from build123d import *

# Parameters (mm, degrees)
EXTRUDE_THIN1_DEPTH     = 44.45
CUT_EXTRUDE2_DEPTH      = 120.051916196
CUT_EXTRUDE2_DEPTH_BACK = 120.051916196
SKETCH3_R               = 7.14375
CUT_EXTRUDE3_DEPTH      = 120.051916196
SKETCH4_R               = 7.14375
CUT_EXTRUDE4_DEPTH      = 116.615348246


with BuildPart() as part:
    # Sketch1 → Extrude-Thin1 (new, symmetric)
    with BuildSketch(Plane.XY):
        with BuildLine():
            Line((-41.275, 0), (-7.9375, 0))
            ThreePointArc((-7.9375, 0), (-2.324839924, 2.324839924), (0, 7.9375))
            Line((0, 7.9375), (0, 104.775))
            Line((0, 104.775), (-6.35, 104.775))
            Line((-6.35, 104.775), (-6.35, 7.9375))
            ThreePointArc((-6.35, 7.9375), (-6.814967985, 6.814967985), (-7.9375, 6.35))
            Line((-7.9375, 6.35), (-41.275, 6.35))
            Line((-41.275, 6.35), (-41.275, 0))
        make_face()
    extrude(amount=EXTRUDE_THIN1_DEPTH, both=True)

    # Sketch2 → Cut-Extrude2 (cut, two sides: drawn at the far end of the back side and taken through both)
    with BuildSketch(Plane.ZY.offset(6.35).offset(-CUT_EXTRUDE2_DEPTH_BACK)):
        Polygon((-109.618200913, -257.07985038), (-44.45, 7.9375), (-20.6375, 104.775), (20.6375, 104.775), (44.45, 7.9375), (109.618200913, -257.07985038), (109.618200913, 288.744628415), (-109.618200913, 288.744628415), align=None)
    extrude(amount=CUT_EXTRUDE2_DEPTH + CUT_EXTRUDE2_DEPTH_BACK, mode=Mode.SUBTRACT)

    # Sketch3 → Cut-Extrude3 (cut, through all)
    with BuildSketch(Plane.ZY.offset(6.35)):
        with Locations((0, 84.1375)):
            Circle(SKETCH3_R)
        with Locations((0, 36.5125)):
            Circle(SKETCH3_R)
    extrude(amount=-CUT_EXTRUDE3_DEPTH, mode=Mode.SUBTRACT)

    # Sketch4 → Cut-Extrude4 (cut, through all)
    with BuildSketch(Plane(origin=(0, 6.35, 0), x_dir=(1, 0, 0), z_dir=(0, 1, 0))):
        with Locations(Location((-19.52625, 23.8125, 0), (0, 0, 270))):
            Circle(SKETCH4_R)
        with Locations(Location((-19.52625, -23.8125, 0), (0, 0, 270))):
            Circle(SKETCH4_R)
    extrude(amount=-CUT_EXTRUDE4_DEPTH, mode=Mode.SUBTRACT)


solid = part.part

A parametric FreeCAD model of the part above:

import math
import FreeCAD as App
import Part
import Sketcher
Q = App.Units.Quantity

doc = App.newDocument("Part")
body = doc.addObject("PartDesign::Body", "Body")

# Sketch on XY plane
sketch1 = body.newObject("Sketcher::SketchObject", "Sketch")
sketch1.AttachmentSupport = (doc.getObject("XY_Plane"), [""])
sketch1.MapMode = "FlatFace"
sketch1.addGeometry(Part.LineSegment(App.Vector(-41.3, 0, 0), App.Vector(-7.9, 0, 0)), False)
sketch1.addGeometry(Part.ArcOfCircle(Part.Circle(App.Vector(-7.9, 7.9, 0), App.Vector(0, 0, 1), 7.9), math.radians(-90), math.radians(0)), False)
sketch1.addGeometry(Part.LineSegment(App.Vector(0, 7.9, 0), App.Vector(0, 104.8, 0)), False)
sketch1.addGeometry(Part.LineSegment(App.Vector(0, 104.8, 0), App.Vector(-6.3, 104.8, 0)), False)
sketch1.addGeometry(Part.LineSegment(App.Vector(-6.3, 104.8, 0), App.Vector(-6.3, 7.9, 0)), False)
sketch1.addGeometry(Part.ArcOfCircle(Part.Circle(App.Vector(-7.9, 7.9, 0), App.Vector(0, 0, 1), 1.6), math.radians(-90), math.radians(0)), False)
sketch1.addGeometry(Part.LineSegment(App.Vector(-7.9, 6.3, 0), App.Vector(-41.3, 6.3, 0)), False)
sketch1.addGeometry(Part.LineSegment(App.Vector(-41.3, 6.3, 0), App.Vector(-41.3, 0, 0)), False)
sketch1.addConstraint(Sketcher.Constraint("Tangent", 0, 2, 1, 1))
sketch1.addConstraint(Sketcher.Constraint("Tangent", 1, 2, 2, 1))
sketch1.addConstraint(Sketcher.Constraint("Coincident", 2, 2, 3, 1))
sketch1.addConstraint(Sketcher.Constraint("Coincident", 3, 2, 4, 1))
sketch1.addConstraint(Sketcher.Constraint("Tangent", 4, 2, 5, 2))
sketch1.addConstraint(Sketcher.Constraint("Tangent", 5, 1, 6, 1))
sketch1.addConstraint(Sketcher.Constraint("Coincident", 6, 2, 7, 1))
sketch1.addConstraint(Sketcher.Constraint("Coincident", 7, 2, 0, 1))
sketch1.addConstraint(Sketcher.Constraint("Horizontal", 0))
sketch1.addConstraint(Sketcher.Constraint("Vertical", 2))
sketch1.addConstraint(Sketcher.Constraint("Horizontal", 3))
sketch1.addConstraint(Sketcher.Constraint("Vertical", 4))
sketch1.addConstraint(Sketcher.Constraint("Horizontal", 6))
sketch1.addConstraint(Sketcher.Constraint("Vertical", 7))
sketch1.addConstraint(Sketcher.Constraint("Coincident", 5, 3, 1, 3))
sketch1.addConstraint(Sketcher.Constraint("PointOnObject", 0, 2, -1))
sketch1.addConstraint(Sketcher.Constraint("PointOnObject", 1, 2, -2))
sketch1.addConstraint(Sketcher.Constraint("Radius", 1, Q("0.3125 in")))
sketch1.addConstraint(Sketcher.Constraint("Radius", 5, Q("0.0625 in")))
sketch1.addConstraint(Sketcher.Constraint("DistanceX", 0, 1, 0, 2, Q("1.3125 in")))
sketch1.addConstraint(Sketcher.Constraint("DistanceY", 2, 1, 2, 2, Q("3.8125 in")))
pad1 = body.newObject("PartDesign::Pad", "Pad")
pad1.Profile = sketch1
pad1.Length = Q("3.5 in")
pad1.Midplane = True

# Sketch on YZ plane
sketch2 = body.newObject("Sketcher::SketchObject", "Sketch001")
sketch2.AttachmentSupport = (doc.getObject("YZ_Plane"), [""])
sketch2.MapMode = "FlatFace"
sketch2.AttachmentOffset = App.Placement(App.Vector(0, 0, -0.25 * 25.4), App.Rotation())
sketch2.addGeometry(Part.LineSegment(App.Vector(-257, -110, 0), App.Vector(105, -21, 0)), False)
sketch2.addGeometry(Part.LineSegment(App.Vector(105, -21, 0), App.Vector(105, 21, 0)), False)
sketch2.addGeometry(Part.LineSegment(App.Vector(105, 21, 0), App.Vector(-257, 110, 0)), False)
sketch2.addGeometry(Part.LineSegment(App.Vector(-257, 110, 0), App.Vector(289, 110, 0)), False)
sketch2.addGeometry(Part.LineSegment(App.Vector(289, 110, 0), App.Vector(289, -110, 0)), False)
sketch2.addGeometry(Part.LineSegment(App.Vector(289, -110, 0), App.Vector(-257, -110, 0)), False)
sketch2.addConstraint(Sketcher.Constraint("Coincident", 0, 2, 1, 1))
sketch2.addConstraint(Sketcher.Constraint("Coincident", 1, 2, 2, 1))
sketch2.addConstraint(Sketcher.Constraint("Coincident", 2, 2, 3, 1))
sketch2.addConstraint(Sketcher.Constraint("Coincident", 3, 2, 4, 1))
sketch2.addConstraint(Sketcher.Constraint("Coincident", 4, 2, 5, 1))
sketch2.addConstraint(Sketcher.Constraint("Coincident", 5, 2, 0, 1))
sketch2.addConstraint(Sketcher.Constraint("Vertical", 1))
sketch2.addConstraint(Sketcher.Constraint("Horizontal", 3))
sketch2.addConstraint(Sketcher.Constraint("Vertical", 4))
sketch2.addConstraint(Sketcher.Constraint("Horizontal", 5))
sketch2.addConstraint(Sketcher.Constraint("Symmetric", 2, 2, 5, 2, -1))
sketch2.addConstraint(Sketcher.Constraint("Equal", 0, 2))
sketch2.addConstraint(Sketcher.Constraint("DistanceY", 1, 1, 1, 2, Q("1.625 in")))
sketch2.addConstraint(Sketcher.Constraint("DistanceX", -1, 1, 0, 2, Q("4.125 in")))
sketch2.addConstraint(Sketcher.Constraint("DistanceY", 4, 2, 4, 1, 219.236402))
sketch2.addConstraint(Sketcher.Constraint("DistanceX", 3, 1, 3, 2, 545.824479))
sketch2.addConstraint(Sketcher.Constraint("DistanceX", 2, 2, -1, 1, 257.07985))
pocket1 = body.newObject("PartDesign::Pocket", "Pocket")
pocket1.Profile = sketch2
pocket1.Type = "ThroughAll"
pocket1.Midplane = True

# Sketch on YZ plane
sketch3 = body.newObject("Sketcher::SketchObject", "Sketch002")
sketch3.AttachmentSupport = (doc.getObject("YZ_Plane"), [""])
sketch3.MapMode = "FlatFace"
sketch3.AttachmentOffset = App.Placement(App.Vector(0, 0, -0.25 * 25.4), App.Rotation())
sketch3.addGeometry(Part.Circle(App.Vector(84, 0, 0), App.Vector(0, 0, 1), 7), False)
sketch3.addGeometry(Part.Circle(App.Vector(37, 0, 0), App.Vector(0, 0, 1), 7), False)
sketch3.addConstraint(Sketcher.Constraint("Equal", 0, 1))
sketch3.addConstraint(Sketcher.Constraint("PointOnObject", 0, 3, -1))
sketch3.addConstraint(Sketcher.Constraint("PointOnObject", 1, 3, -1))
sketch3.addConstraint(Sketcher.Constraint("Diameter", 0, Q("0.5625 in")))
sketch3.addConstraint(Sketcher.Constraint("DistanceX", -1, 1, 0, 3, Q("3.3125 in")))
sketch3.addConstraint(Sketcher.Constraint("DistanceX", -1, 1, 1, 3, Q("1.4375 in")))
pocket2 = body.newObject("PartDesign::Pocket", "Pocket001")
pocket2.Profile = sketch3
pocket2.Type = "ThroughAll"
pocket2.Reversed = True

# Sketch on XZ plane
sketch4 = body.newObject("Sketcher::SketchObject", "Sketch003")
sketch4.AttachmentSupport = (doc.getObject("XZ_Plane"), [""])
sketch4.MapMode = "FlatFace"
sketch4.AttachmentOffset = App.Placement(App.Vector(0, 0, -0.25 * 25.4), App.Rotation())
sketch4.addGeometry(Part.Circle(App.Vector(-20, -24, 0), App.Vector(0, 0, 1), 7), False)
sketch4.addGeometry(Part.Circle(App.Vector(-20, 24, 0), App.Vector(0, 0, 1), 7), False)
sketch4.addConstraint(Sketcher.Constraint("Equal", 0, 1))
sketch4.addConstraint(Sketcher.Constraint("Symmetric", 0, 3, 1, 3, -1))
sketch4.addConstraint(Sketcher.Constraint("Diameter", 0, Q("0.5625 in")))
sketch4.addConstraint(Sketcher.Constraint("DistanceY", 0, 3, -1, 1, Q("0.9375 in")))
sketch4.addConstraint(Sketcher.Constraint("DistanceX", 0, 3, -1, 1, 19.52625))
pocket3 = body.newObject("PartDesign::Pocket", "Pocket002")
pocket3.Profile = sketch4
pocket3.Type = "ThroughAll"
pocket3.Reversed = True

doc.recompute()
